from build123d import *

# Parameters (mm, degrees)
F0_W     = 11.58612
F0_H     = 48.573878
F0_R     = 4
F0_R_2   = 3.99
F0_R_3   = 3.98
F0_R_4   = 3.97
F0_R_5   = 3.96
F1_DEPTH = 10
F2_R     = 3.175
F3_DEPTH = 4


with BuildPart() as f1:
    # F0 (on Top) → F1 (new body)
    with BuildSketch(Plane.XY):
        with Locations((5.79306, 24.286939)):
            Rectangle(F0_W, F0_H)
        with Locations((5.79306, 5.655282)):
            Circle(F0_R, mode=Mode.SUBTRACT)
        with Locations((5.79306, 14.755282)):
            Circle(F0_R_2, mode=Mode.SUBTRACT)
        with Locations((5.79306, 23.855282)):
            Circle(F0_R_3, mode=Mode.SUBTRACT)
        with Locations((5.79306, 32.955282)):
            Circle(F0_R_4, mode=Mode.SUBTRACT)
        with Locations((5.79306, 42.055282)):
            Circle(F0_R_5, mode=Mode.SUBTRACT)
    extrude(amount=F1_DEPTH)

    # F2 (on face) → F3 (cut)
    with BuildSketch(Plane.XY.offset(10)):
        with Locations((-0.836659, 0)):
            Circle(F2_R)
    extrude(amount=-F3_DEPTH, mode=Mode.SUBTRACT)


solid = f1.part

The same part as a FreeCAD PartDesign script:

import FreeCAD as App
import Part
import Sketcher
from FreeCAD import Vector
Q = App.Units.Quantity


def add_polygon(sketch, points):
    """Adds a closed chain of lines whose ends are joined by coincident constraints."""
    first, n = sketch.GeometryCount, len(points)
    for a, b in zip(points, points[1:] + points[:1]):
        sketch.addGeometry(Part.LineSegment(App.Vector(*a, 0), App.Vector(*b, 0)), False)
    for i in range(n):
        sketch.addConstraint(Sketcher.Constraint("Coincident", first + i, 2, first + (i + 1) % n, 1))

doc = App.newDocument("Part")
body = doc.addObject("PartDesign::Body", "Body")

sketch1 = body.newObject("Sketcher::SketchObject", "Sketch")
sketch1.AttachmentSupport = (doc.getObject("XY_Plane"), [""])
sketch1.MapMode = "FlatFace"
add_polygon(sketch1, [(0, 48.573878), (0, 0), (11.58612, 0), (11.58612, 48.573878)])
sketch1.addGeometry(Part.Circle(Vector(5.79306, 5.655282, 0), Vector(0, 0, 1), 4), False)
sketch1.addGeometry(Part.Circle(Vector(5.79306, 14.755282, 0), Vector(0, 0, 1), 3.99), False)
sketch1.addGeometry(Part.Circle(Vector(5.79306, 23.855282, 0), Vector(0, 0, 1), 3.98), False)
sketch1.addGeometry(Part.Circle(Vector(5.79306, 32.955282, 0), Vector(0, 0, 1), 3.97), False)
sketch1.addGeometry(Part.Circle(Vector(5.79306, 42.055282, 0), Vector(0, 0, 1), 3.96), False)
sketch1.addConstraint(Sketcher.Constraint("Vertical", 0))
sketch1.addConstraint(Sketcher.Constraint("Horizontal", 1))
sketch1.addConstraint(Sketcher.Constraint("Vertical", 2))
sketch1.addConstraint(Sketcher.Constraint("Horizontal", 3))
sketch1.addConstraint(Sketcher.Constraint("Coincident", 0, 2, -1, 1))
sketch1.addConstraint(Sketcher.Constraint("Vertical", 4, 3, 5, 3))
sketch1.addConstraint(Sketcher.Constraint("Vertical", 5, 3, 6, 3))
sketch1.addConstraint(Sketcher.Constraint("Vertical", 6, 3, 7, 3))
sketch1.addConstraint(Sketcher.Constraint("Vertical", 7, 3, 8, 3))
sketch1.addConstraint(Sketcher.Constraint("Diameter", 4, Q("8 mm")))
sketch1.addConstraint(Sketcher.Constraint("Diameter", 5, Q("7.98 mm")))
sketch1.addConstraint(Sketcher.Constraint("Diameter", 6, Q("7.96 mm")))
sketch1.addConstraint(Sketcher.Constraint("Diameter", 7, Q("7.94 mm")))
sketch1.addConstraint(Sketcher.Constraint("Diameter", 8, Q("7.92 mm")))
sketch1.addConstraint(Sketcher.Constraint("DistanceY", 4, 3, 5, 3, Q("9.1 mm")))
sketch1.addConstraint(Sketcher.Constraint("DistanceY", 5, 3, 6, 3, Q("9.1 mm")))
sketch1.addConstraint(Sketcher.Constraint("DistanceY", 6, 3, 7, 3, Q("9.1 mm")))
sketch1.addConstraint(Sketcher.Constraint("DistanceY", 7, 3, 8, 3, Q("9.1 mm")))
sketch1.addConstraint(Sketcher.Constraint("DistanceX", 1, 1, 1, 2, Q("11.58612 mm")))
sketch1.addConstraint(Sketcher.Constraint("DistanceY", 0, 2, 0, 1, Q("48.573878 mm")))
sketch1.addConstraint(Sketcher.Constraint("DistanceX", -1, 1, 4, 3, Q("5.79306 mm")))
sketch1.addConstraint(Sketcher.Constraint("DistanceY", -1, 1, 4, 3, Q("5.655282 mm")))
pad1 = body.newObject("PartDesign::Pad", "Pad")
pad1.Profile = sketch1
pad1.Length = 10

sketch2 = body.newObject("Sketcher::SketchObject", "Sketch001")
sketch2.AttachmentSupport = (doc.getObject("XY_Plane"), [""])
sketch2.MapMode = "FlatFace"
sketch2.AttachmentOffset = App.Placement(Vector(0, 0, 10), App.Rotation())
sketch2.addGeometry(Part.Circle(Vector(-0.836659, 0, 0), Vector(0, 0, 1), 3.175), False)
sketch2.addConstraint(Sketcher.Constraint("PointOnObject", 0, 3, -1))
sketch2.addConstraint(Sketcher.Constraint("Diameter", 0, Q("6.35 mm")))
sketch2.addConstraint(Sketcher.Constraint("DistanceX", 0, 3, -1, 1, Q("0.836659 mm")))
pocket1 = body.newObject("PartDesign::Pocket", "Pocket")
pocket1.Profile = sketch2
pocket1.Length = 4

doc.recompute()
